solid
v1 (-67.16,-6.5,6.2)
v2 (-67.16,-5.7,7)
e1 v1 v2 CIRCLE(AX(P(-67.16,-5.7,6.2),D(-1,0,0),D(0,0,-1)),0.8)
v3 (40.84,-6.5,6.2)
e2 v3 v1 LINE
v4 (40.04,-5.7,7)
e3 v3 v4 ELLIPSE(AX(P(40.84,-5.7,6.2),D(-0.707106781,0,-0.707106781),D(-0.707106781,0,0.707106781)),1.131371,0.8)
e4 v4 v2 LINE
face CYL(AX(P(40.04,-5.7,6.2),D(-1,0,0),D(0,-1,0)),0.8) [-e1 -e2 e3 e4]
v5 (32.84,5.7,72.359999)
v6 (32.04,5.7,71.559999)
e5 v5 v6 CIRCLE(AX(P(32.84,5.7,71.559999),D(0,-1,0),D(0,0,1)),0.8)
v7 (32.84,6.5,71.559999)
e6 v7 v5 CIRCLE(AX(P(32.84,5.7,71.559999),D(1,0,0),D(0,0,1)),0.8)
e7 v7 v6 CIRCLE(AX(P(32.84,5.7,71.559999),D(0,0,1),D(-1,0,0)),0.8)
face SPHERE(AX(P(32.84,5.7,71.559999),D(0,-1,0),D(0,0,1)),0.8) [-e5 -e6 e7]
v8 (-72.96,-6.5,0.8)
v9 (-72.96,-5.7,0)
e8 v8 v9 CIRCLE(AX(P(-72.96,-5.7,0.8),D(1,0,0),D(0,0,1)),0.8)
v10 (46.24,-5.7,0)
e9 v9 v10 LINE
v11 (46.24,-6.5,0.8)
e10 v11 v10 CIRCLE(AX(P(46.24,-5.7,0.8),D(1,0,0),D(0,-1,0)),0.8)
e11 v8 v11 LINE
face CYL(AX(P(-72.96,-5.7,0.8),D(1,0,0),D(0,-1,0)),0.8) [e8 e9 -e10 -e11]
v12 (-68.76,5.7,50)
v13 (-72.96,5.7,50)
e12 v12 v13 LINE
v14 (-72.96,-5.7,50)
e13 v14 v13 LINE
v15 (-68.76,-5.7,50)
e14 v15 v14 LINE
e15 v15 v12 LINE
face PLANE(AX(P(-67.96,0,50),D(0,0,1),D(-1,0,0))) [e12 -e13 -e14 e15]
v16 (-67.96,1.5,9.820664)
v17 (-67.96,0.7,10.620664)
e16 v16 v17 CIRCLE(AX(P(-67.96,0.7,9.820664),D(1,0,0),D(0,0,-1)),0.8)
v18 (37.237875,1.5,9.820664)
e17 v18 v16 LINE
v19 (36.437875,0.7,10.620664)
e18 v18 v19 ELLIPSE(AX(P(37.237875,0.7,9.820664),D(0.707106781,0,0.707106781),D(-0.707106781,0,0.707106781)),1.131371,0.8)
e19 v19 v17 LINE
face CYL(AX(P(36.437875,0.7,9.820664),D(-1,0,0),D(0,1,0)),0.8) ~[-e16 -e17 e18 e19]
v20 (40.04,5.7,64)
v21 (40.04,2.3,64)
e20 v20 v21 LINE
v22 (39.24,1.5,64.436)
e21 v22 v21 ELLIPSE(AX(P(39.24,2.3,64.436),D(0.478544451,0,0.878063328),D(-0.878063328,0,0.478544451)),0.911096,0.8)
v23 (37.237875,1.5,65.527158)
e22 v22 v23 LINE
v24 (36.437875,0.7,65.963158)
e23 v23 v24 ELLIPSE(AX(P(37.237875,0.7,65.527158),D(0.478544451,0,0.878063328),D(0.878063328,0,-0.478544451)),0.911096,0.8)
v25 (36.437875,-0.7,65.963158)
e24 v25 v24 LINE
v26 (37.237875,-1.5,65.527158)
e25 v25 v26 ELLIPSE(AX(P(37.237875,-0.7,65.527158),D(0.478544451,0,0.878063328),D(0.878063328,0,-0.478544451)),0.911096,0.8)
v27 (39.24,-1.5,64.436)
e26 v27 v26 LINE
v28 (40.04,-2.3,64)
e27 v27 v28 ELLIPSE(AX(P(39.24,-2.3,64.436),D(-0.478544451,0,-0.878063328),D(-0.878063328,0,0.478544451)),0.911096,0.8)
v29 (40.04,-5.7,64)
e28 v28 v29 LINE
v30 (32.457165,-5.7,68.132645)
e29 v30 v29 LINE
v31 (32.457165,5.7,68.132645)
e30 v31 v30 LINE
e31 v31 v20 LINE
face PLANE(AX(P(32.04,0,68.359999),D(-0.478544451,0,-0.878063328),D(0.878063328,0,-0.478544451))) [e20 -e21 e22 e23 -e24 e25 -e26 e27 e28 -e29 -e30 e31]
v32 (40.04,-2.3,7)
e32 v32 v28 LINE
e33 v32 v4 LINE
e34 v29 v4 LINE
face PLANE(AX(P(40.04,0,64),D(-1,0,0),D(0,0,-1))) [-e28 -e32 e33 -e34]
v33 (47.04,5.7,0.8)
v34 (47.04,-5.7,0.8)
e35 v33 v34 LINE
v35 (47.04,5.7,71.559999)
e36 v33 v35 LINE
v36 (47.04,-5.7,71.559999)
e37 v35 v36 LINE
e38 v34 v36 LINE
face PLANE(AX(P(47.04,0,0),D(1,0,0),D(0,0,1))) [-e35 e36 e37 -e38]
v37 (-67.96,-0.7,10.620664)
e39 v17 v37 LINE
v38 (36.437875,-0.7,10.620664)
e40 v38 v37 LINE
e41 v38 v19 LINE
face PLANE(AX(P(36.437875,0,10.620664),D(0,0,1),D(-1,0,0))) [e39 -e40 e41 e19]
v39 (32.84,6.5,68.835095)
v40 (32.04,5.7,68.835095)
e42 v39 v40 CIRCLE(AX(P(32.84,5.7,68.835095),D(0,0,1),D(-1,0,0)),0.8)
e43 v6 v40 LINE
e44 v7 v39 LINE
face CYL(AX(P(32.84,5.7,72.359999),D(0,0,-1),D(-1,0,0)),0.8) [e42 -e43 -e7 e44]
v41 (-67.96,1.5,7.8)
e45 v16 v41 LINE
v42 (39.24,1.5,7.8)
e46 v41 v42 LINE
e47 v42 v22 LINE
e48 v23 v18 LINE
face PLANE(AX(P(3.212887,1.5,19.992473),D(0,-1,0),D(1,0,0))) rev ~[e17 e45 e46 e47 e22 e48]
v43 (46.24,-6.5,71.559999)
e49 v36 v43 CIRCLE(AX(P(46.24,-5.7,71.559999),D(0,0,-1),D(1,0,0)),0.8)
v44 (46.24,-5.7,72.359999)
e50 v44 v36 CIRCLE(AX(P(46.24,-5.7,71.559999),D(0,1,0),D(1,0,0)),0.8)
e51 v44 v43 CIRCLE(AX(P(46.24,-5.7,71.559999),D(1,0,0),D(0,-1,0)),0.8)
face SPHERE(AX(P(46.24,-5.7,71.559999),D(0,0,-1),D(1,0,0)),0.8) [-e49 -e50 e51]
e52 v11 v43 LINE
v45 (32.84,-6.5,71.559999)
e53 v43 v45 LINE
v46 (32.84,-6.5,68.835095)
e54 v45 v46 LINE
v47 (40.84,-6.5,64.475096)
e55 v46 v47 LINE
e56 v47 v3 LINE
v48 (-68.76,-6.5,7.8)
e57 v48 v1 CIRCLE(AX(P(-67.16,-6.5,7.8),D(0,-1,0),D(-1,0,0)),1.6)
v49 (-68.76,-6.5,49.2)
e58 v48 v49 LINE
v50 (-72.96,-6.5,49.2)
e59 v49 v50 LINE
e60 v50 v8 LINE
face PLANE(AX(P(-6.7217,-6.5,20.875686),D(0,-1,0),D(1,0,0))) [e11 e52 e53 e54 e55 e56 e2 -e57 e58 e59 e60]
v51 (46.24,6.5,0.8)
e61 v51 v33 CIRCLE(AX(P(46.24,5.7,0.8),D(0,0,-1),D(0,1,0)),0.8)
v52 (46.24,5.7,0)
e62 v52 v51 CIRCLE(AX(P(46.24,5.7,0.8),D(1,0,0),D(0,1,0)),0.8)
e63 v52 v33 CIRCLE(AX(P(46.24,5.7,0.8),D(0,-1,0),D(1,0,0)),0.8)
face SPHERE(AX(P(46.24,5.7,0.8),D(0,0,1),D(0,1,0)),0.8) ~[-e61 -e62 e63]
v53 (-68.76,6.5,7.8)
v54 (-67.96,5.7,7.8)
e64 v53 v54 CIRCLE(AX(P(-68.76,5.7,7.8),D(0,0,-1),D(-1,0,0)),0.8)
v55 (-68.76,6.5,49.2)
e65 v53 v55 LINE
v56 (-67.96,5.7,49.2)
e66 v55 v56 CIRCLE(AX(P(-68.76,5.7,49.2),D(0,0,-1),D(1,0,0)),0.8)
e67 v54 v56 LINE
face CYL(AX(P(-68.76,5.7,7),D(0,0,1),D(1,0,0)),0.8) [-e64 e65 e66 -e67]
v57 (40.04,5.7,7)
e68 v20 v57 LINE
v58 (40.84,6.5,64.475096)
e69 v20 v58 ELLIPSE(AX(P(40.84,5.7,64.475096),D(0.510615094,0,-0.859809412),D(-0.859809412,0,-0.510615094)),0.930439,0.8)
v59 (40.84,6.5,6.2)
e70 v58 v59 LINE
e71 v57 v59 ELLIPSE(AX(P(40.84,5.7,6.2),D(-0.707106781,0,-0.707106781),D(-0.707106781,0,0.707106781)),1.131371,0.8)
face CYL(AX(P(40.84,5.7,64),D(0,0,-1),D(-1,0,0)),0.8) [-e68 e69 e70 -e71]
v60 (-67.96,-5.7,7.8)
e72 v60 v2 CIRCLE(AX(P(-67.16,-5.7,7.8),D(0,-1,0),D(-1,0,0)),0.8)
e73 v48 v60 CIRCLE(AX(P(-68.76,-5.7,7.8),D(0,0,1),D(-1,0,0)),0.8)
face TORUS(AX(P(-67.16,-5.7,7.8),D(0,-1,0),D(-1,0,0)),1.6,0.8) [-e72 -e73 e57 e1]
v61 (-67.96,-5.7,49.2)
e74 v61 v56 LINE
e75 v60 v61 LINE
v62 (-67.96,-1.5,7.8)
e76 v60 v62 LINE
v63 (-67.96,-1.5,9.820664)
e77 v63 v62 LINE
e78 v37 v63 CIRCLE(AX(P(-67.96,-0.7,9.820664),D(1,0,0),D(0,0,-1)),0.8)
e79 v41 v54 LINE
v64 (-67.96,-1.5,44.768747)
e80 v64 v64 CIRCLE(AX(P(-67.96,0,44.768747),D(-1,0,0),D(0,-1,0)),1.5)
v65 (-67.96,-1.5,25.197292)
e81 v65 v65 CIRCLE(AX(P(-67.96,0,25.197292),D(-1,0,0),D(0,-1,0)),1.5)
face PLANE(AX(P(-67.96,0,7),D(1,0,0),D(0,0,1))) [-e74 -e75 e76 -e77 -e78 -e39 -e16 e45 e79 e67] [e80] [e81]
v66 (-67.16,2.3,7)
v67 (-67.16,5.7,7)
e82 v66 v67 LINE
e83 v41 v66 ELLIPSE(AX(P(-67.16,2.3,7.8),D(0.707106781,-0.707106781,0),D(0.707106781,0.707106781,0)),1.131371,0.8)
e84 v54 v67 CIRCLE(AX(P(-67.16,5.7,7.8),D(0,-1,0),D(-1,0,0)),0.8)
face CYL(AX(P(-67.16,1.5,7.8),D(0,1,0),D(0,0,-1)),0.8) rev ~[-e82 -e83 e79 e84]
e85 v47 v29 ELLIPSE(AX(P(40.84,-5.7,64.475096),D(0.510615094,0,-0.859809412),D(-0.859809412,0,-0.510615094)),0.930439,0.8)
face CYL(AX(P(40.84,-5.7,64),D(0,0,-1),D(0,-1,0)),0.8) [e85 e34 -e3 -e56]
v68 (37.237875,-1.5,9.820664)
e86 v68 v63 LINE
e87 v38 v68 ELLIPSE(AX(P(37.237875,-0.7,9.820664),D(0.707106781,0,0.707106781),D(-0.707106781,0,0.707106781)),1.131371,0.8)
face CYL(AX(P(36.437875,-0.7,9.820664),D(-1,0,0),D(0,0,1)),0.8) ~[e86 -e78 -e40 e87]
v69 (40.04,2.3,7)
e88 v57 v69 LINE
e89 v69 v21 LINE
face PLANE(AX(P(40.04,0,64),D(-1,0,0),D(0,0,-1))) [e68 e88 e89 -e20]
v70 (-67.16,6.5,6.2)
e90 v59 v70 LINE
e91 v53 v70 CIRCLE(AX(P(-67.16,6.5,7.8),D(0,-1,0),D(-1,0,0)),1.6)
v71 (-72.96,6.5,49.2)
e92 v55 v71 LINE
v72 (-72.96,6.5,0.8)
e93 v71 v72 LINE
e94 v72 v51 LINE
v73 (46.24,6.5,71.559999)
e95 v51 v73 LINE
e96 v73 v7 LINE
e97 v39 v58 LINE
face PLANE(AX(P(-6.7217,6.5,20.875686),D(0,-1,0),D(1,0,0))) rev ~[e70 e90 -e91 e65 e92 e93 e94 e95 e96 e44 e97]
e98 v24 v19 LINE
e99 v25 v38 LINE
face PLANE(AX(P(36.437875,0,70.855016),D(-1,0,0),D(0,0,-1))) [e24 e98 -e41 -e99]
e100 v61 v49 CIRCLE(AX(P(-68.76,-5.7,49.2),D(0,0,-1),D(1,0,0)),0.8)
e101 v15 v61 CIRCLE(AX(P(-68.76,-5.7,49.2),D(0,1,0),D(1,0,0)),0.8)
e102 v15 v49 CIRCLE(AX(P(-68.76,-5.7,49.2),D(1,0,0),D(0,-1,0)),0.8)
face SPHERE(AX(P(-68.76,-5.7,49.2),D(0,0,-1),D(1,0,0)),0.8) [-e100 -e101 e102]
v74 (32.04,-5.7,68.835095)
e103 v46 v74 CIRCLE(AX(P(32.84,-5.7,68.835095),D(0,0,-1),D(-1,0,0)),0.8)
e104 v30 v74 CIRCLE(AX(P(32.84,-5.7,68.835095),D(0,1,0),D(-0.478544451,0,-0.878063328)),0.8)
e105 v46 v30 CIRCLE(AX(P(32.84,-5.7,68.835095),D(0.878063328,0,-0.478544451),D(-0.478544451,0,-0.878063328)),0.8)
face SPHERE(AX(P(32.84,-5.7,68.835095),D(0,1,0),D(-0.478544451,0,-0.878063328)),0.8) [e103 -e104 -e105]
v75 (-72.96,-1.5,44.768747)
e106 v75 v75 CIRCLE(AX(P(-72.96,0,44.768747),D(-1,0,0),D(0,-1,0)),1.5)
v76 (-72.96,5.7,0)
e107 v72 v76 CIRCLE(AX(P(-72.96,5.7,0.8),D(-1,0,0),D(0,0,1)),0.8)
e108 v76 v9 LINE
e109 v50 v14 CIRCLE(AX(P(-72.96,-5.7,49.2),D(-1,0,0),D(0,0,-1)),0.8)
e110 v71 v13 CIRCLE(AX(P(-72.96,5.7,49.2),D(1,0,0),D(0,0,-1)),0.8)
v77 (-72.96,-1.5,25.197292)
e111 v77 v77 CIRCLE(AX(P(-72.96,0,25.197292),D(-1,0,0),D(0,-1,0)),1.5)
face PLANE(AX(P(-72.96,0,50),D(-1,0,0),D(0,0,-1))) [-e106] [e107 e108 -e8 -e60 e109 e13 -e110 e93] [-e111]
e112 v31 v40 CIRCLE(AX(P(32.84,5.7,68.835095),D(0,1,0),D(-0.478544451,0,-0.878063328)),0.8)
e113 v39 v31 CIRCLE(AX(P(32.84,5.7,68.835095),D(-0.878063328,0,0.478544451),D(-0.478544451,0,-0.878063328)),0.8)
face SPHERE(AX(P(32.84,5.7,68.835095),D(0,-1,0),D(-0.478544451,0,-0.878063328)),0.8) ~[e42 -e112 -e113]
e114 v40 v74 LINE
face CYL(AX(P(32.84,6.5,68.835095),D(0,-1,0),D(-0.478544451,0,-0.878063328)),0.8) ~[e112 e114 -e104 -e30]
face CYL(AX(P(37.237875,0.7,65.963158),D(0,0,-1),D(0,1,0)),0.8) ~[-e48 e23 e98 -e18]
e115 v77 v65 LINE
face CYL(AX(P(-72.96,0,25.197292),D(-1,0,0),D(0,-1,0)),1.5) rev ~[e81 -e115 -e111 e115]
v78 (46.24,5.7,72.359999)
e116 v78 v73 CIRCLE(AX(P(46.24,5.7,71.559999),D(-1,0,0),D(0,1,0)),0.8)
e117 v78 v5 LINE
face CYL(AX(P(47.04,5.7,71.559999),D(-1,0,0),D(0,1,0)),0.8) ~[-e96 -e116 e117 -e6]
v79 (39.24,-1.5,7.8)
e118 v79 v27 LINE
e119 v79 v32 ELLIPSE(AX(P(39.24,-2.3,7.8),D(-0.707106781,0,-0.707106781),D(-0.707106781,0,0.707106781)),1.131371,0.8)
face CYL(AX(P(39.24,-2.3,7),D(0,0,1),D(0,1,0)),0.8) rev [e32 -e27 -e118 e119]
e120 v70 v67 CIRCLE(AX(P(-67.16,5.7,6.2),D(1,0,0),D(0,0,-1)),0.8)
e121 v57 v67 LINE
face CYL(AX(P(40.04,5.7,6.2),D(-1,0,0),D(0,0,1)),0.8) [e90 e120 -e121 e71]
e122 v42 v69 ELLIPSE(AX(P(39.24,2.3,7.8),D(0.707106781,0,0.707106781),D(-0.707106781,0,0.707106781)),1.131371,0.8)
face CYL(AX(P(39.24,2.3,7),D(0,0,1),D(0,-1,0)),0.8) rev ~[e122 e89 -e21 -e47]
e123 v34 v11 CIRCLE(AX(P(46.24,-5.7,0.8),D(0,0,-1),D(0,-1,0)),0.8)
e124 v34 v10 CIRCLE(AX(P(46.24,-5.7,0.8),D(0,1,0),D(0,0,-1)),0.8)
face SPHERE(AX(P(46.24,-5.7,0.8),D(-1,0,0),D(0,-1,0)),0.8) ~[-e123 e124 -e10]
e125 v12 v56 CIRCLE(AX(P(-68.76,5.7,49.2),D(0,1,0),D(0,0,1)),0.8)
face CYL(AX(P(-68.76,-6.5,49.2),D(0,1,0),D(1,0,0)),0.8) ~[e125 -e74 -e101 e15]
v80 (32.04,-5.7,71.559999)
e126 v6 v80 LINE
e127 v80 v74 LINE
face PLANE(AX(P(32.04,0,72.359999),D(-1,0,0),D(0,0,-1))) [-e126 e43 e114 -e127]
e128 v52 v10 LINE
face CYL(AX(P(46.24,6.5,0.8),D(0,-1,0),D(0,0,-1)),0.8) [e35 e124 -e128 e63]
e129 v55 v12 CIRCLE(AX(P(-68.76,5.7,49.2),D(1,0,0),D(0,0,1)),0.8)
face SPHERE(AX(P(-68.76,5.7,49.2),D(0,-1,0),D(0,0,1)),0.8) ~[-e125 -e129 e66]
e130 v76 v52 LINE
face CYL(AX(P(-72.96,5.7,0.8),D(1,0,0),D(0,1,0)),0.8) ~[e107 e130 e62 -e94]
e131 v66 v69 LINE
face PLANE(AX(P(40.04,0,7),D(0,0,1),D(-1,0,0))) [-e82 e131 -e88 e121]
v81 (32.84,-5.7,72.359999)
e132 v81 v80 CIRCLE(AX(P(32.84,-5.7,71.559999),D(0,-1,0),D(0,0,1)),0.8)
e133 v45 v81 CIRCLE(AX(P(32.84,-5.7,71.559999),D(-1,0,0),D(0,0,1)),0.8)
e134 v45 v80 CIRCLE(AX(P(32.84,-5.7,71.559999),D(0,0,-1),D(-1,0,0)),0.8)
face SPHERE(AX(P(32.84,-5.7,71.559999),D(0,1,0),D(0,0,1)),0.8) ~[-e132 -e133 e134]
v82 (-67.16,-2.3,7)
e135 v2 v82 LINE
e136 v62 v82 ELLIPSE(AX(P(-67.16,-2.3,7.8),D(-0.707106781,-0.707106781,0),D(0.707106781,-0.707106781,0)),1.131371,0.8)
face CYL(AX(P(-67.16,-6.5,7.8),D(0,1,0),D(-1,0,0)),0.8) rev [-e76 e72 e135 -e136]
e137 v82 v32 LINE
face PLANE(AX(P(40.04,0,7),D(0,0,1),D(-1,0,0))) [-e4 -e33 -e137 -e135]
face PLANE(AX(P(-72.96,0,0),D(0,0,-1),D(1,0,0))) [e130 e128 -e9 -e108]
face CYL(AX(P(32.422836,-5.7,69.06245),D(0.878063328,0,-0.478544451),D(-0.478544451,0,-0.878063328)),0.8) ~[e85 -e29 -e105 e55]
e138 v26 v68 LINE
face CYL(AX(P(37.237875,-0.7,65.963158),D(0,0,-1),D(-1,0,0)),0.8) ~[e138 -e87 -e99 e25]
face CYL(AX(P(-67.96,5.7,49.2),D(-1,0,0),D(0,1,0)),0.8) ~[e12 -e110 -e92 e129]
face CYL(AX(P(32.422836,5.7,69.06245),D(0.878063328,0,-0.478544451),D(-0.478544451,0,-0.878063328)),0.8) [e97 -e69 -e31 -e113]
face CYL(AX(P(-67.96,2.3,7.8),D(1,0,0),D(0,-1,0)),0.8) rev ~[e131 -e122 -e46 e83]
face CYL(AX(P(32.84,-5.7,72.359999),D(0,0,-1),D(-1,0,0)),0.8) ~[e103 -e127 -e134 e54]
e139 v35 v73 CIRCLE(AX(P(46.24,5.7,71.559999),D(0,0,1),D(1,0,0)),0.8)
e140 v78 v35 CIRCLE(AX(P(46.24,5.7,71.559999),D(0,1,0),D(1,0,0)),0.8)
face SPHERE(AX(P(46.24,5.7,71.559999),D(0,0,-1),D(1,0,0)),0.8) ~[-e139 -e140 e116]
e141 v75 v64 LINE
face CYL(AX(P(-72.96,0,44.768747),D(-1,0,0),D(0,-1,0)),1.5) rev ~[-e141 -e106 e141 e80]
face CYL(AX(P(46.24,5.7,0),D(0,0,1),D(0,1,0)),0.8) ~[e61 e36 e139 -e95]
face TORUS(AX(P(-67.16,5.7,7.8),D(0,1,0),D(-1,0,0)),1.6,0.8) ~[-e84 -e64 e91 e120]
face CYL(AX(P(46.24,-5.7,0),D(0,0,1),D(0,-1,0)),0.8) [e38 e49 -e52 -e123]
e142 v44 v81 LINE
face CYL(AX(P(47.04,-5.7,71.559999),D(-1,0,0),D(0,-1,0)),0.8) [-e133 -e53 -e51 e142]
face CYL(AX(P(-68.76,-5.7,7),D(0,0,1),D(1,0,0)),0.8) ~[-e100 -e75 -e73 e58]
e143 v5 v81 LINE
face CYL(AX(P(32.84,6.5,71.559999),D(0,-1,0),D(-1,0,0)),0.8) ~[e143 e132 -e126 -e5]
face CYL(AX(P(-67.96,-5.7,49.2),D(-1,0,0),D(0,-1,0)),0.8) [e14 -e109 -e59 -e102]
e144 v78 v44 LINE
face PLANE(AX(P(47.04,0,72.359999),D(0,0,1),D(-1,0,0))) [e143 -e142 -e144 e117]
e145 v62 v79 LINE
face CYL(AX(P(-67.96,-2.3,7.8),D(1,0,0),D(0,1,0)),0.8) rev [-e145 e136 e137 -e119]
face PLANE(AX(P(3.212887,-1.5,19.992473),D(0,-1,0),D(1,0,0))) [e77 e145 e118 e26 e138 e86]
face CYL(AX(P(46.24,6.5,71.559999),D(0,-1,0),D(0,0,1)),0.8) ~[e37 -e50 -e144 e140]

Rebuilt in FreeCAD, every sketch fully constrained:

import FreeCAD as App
import Part
import Sketcher

V = App.Vector


def edges_at(feature, points):
    """Names of the edges that pass closest to the given points."""
    edges = feature.Shape.Edges
    near = lambda p: min(range(len(edges)), key=lambda i: edges[i].distToShape(Part.Vertex(*p))[0])
    return sorted({f"Edge{near(p) + 1}" for p in points})


def add_polygon(sketch, points):
    """Adds a closed chain of lines whose ends are joined by coincident constraints."""
    first, n = sketch.GeometryCount, len(points)
    for a, b in zip(points, points[1:] + points[:1]):
        sketch.addGeometry(Part.LineSegment(App.Vector(*a, 0), App.Vector(*b, 0)), False)
    for i in range(n):
        sketch.addConstraint(Sketcher.Constraint("Coincident", first + i, 2, first + (i + 1) % n, 1))

doc = App.newDocument("Part")
body = doc.addObject("PartDesign::Body", "Body")

sketch1 = body.newObject("Sketcher::SketchObject", "Sketch")
sketch1.AttachmentSupport = (doc.getObject("XZ_Plane"), [""])
sketch1.MapMode = "FlatFace"
add_polygon(sketch1, [(-73, 50), (-73, 0), (47, 0), (47, 72.4), (32, 72.4), (32, 68.4), (40, 64), (40, 7), (-68, 7), (-68, 50)])
sketch1.addConstraint(Sketcher.Constraint("Vertical", 0))
sketch1.addConstraint(Sketcher.Constraint("Horizontal", 1))
sketch1.addConstraint(Sketcher.Constraint("Vertical", 2))
sketch1.addConstraint(Sketcher.Constraint("Horizontal", 3))
sketch1.addConstraint(Sketcher.Constraint("Vertical", 4))
sketch1.addConstraint(Sketcher.Constraint("Vertical", 6))
sketch1.addConstraint(Sketcher.Constraint("Horizontal", 7))
sketch1.addConstraint(Sketcher.Constraint("Vertical", 8))
sketch1.addConstraint(Sketcher.Constraint("Horizontal", 9))
sketch1.addConstraint(Sketcher.Constraint("PointOnObject", 0, 2, -1))
sketch1.addConstraint(Sketcher.Constraint("DistanceX", 1, 1, 1, 2, 120.0))
sketch1.addConstraint(Sketcher.Constraint("DistanceX", 3, 2, 3, 1, 15.0))
sketch1.addConstraint(Sketcher.Constraint("DistanceX", 7, 2, 7, 1, 108.0))
sketch1.addConstraint(Sketcher.Constraint("DistanceX", 9, 2, 9, 1, 5.0))
sketch1.addConstraint(Sketcher.Constraint("DistanceY", 0, 2, 0, 1, 50.0))
sketch1.addConstraint(Sketcher.Constraint("DistanceY", 4, 2, 4, 1, 4.0))
sketch1.addConstraint(Sketcher.Constraint("DistanceY", 6, 2, 6, 1, 57.0))
sketch1.addConstraint(Sketcher.Constraint("DistanceY", 8, 1, 8, 2, 43.0))
sketch1.addConstraint(Sketcher.Constraint("DistanceY", 2, 1, 2, 2, 72.359999))
sketch1.addConstraint(Sketcher.Constraint("DistanceX", 0, 2, -1, 1, 72.96))
pad1 = body.newObject("PartDesign::Pad", "Pad")
pad1.Profile = sketch1
pad1.Length = 13
pad1.Midplane = True

sketch2 = body.newObject("Sketcher::SketchObject", "Sketch001")
sketch2.AttachmentSupport = (doc.getObject("YZ_Plane"), [""])
sketch2.MapMode = "FlatFace"
sketch2.AttachmentOffset = App.Placement(V(0, 0, -72.96), App.Rotation())
sketch2.addGeometry(Part.Circle(V(0, 25.2, 0), V(0, 0, 1), 1.5), False)
sketch2.addGeometry(Part.Circle(V(0, 44.8, 0), V(0, 0, 1), 1.5), False)
sketch2.addConstraint(Sketcher.Constraint("Equal", 0, 1))
sketch2.addConstraint(Sketcher.Constraint("PointOnObject", 0, 3, -2))
sketch2.addConstraint(Sketcher.Constraint("PointOnObject", 1, 3, -2))
sketch2.addConstraint(Sketcher.Constraint("Diameter", 0, 3.0))
sketch2.addConstraint(Sketcher.Constraint("DistanceY", -1, 1, 0, 3, 25.197292))
sketch2.addConstraint(Sketcher.Constraint("DistanceY", -1, 1, 1, 3, 44.768747))
pocket1 = body.newObject("PartDesign::Pocket", "Pocket")
pocket1.Profile = sketch2
pocket1.Length = 25
pocket1.Reversed = True

sketch3 = body.newObject("Sketcher::SketchObject", "Sketch002")
sketch3.AttachmentSupport = (doc.getObject("XZ_Plane"), [""])
sketch3.MapMode = "FlatFace"
add_polygon(sketch3, [(-72, 11), (-72, 6), (41, 6), (41, 71), (36, 71), (36, 11)])
sketch3.addConstraint(Sketcher.Constraint("Vertical", 0))
sketch3.addConstraint(Sketcher.Constraint("Horizontal", 1))
sketch3.addConstraint(Sketcher.Constraint("Vertical", 2))
sketch3.addConstraint(Sketcher.Constraint("Horizontal", 3))
sketch3.addConstraint(Sketcher.Constraint("Vertical", 4))
sketch3.addConstraint(Sketcher.Constraint("Horizontal", 5))
sketch3.addConstraint(Sketcher.Constraint("Equal", 3, 0))
sketch3.addConstraint(Sketcher.Constraint("DistanceX", 3, 2, 3, 1, 5.0))
sketch3.addConstraint(Sketcher.Constraint("DistanceX", 1, 1, 1, 2, 112.940709))
sketch3.addConstraint(Sketcher.Constraint("DistanceY", 2, 1, 2, 2, 65.234351))
sketch3.addConstraint(Sketcher.Constraint("DistanceX", 0, 2, -1, 1, 71.502835))
sketch3.addConstraint(Sketcher.Constraint("DistanceY", -1, 1, 0, 2, 5.620664))
pad2 = body.newObject("PartDesign::Pad", "Pad001")
pad2.Profile = sketch3
pad2.Length = 3
pad2.Midplane = True
doc.recompute()

fillet = body.newObject("PartDesign::Fillet", "Fillet")
fillet.Base = (pad2, edges_at(pad2, [
    (-67.96, -6.5, 28.5),
    (-67.96, 0, 50),
    (-70.46, 6.5, 50),
    (-70.46, -6.5, 50),
    (-67.96, 6.5, 28.5),
    (-13.96, 6.5, 7),
    (-15.761, 1.5, 10.621),
    (-15.761, -1.5, 10.621),
    (-13.96, -6.5, 7),
    (40.04, -6.5, 35.5),
    (36.438, -1.5, 38.292),
    (36.438, 1.5, 38.292),
    (40.04, 6.5, 35.5),
    (47.04, 6.5, 36.18),
    (-12.96, 6.5, 0),
    (-12.96, -6.5, 0),
    (47.04, -6.5, 36.18),
    (47.04, 0, 72.36),
    (32.04, 0, 72.36),
    (39.54, 6.5, 72.36),
    (39.54, -6.5, 72.36),
    (32.04, 0, 68.36),
    (36.04, -6.5, 66.18),
    (36.04, 6.5, 66.18),
    (40.04, 1.5, 35.5),
    (40.04, -1.5, 35.5),
    (32.04, -6.5, 70.36),
    (32.04, 6.5, 70.36),
    (-13.96, -1.5, 7),
    (-13.96, 1.5, 7),
    (47.04, 0, 0),
    (-67.96, -4, 7),
    (-67.96, 4, 7),
]))
fillet.Radius = 0.8

doc.recompute()
